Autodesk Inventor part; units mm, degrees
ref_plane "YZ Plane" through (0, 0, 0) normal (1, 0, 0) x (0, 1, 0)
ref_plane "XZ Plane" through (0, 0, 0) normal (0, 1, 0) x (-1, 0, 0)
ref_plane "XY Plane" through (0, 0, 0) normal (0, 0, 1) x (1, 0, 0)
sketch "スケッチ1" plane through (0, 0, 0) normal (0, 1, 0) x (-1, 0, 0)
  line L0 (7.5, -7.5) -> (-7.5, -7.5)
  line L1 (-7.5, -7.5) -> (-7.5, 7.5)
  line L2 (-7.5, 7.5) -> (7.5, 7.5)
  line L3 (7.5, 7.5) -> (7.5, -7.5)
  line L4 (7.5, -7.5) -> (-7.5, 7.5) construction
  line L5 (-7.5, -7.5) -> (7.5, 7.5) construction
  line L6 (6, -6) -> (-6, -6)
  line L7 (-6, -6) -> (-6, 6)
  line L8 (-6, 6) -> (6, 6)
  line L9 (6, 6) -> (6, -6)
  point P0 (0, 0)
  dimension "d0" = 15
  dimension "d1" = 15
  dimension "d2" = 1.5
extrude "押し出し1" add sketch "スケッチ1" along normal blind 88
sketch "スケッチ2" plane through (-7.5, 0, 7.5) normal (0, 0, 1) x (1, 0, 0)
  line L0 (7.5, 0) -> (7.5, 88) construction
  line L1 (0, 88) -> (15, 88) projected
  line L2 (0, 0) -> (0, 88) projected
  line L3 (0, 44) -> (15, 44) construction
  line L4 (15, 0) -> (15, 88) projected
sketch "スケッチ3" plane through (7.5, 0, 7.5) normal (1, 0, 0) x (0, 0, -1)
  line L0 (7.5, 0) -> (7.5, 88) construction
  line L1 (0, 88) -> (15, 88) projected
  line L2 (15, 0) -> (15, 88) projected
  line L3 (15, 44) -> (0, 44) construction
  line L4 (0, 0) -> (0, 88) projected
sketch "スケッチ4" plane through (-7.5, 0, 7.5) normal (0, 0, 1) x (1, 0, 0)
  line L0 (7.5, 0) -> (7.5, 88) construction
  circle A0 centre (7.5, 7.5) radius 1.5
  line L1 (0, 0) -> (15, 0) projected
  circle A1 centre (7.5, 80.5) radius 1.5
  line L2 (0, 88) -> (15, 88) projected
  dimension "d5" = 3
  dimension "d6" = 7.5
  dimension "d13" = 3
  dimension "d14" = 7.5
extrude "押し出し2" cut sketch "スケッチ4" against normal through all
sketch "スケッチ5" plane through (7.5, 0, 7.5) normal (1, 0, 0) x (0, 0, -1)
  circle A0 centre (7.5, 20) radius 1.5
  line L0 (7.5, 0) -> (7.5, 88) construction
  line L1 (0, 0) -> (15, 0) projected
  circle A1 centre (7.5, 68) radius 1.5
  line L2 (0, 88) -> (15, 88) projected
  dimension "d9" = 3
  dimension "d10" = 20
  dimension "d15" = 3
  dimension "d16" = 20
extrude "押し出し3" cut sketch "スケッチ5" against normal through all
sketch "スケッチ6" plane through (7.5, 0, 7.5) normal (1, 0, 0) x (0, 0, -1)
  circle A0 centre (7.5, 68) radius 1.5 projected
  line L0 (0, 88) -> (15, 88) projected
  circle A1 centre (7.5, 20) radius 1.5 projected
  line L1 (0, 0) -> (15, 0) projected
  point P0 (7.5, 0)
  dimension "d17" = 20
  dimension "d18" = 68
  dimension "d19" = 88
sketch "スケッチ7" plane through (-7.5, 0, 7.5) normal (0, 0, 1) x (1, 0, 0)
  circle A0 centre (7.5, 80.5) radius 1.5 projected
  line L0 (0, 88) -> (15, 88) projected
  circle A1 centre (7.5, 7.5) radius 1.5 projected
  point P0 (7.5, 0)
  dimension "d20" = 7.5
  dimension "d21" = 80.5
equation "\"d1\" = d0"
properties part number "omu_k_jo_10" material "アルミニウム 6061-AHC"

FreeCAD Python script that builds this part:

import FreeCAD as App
import Part
import Sketcher
Q = App.Units.Quantity


def add_polygon(sketch, points):
    """Adds a closed chain of lines whose ends are joined by coincident constraints."""
    first, n = sketch.GeometryCount, len(points)
    for a, b in zip(points, points[1:] + points[:1]):
        sketch.addGeometry(Part.LineSegment(App.Vector(*a, 0), App.Vector(*b, 0)), False)
    for i in range(n):
        sketch.addConstraint(Sketcher.Constraint("Coincident", first + i, 2, first + (i + 1) % n, 1))

doc = App.newDocument("Part")
body = doc.addObject("PartDesign::Body", "Body")

# Sketch on XZ plane
sketch1 = body.newObject("Sketcher::SketchObject", "Sketch")
sketch1.AttachmentSupport = (doc.getObject("XZ_Plane"), [""])
sketch1.MapMode = "FlatFace"
add_polygon(sketch1, [(7.5, -7.5), (-7.5, -7.5), (-7.5, 7.5), (7.5, 7.5)])  # lines 0-3
add_polygon(sketch1, [(-6, 6), (-6, -6), (6, -6), (6, 6)])  # lines 4-7
sketch1.addConstraint(Sketcher.Constraint("Horizontal", 0))
sketch1.addConstraint(Sketcher.Constraint("Vertical", 1))
sketch1.addConstraint(Sketcher.Constraint("Horizontal", 2))
sketch1.addConstraint(Sketcher.Constraint("Vertical", 3))
sketch1.addConstraint(Sketcher.Constraint("Vertical", 4))
sketch1.addConstraint(Sketcher.Constraint("Horizontal", 5))
sketch1.addConstraint(Sketcher.Constraint("Vertical", 6))
sketch1.addConstraint(Sketcher.Constraint("Horizontal", 7))
sketch1.addConstraint(Sketcher.Constraint("Symmetric", 0, 2, 2, 2, -1, 1))
sketch1.addConstraint(Sketcher.Constraint("Symmetric", 4, 2, 6, 2, -1, 1))
sketch1.addConstraint(Sketcher.Constraint("Equal", 2, 1))
sketch1.addConstraint(Sketcher.Constraint("Equal", 7, 4))
sketch1.addConstraint(Sketcher.Constraint("DistanceX", 0, 2, 0, 1, Q("15 mm")))
sketch1.addConstraint(Sketcher.Constraint("DistanceX", 0, 2, 4, 2, Q("1.5 mm")))
pad1 = body.newObject("PartDesign::Pad", "Pad")
pad1.Profile = sketch1
pad1.Length = 88
pad1.Reversed = True

# Sketch on XY plane
sketch2 = body.newObject("Sketcher::SketchObject", "Sketch001")
sketch2.AttachmentSupport = (doc.getObject("XY_Plane"), [""])
sketch2.MapMode = "FlatFace"
sketch2.AttachmentOffset = App.Placement(App.Vector(0, 0, 7.5), App.Rotation())
sketch2.addGeometry(Part.Circle(App.Vector(0, 7.5, 0), App.Vector(0, 0, 1), 1.5), False)
sketch2.addGeometry(Part.Circle(App.Vector(0, 80.5, 0), App.Vector(0, 0, 1), 1.5), False)
sketch2.addConstraint(Sketcher.Constraint("Equal", 0, 1))
sketch2.addConstraint(Sketcher.Constraint("PointOnObject", 0, 3, -2))
sketch2.addConstraint(Sketcher.Constraint("PointOnObject", 1, 3, -2))
sketch2.addConstraint(Sketcher.Constraint("Diameter", 0, Q("3 mm")))
sketch2.addConstraint(Sketcher.Constraint("DistanceY", -1, 1, 0, 3, Q("7.5 mm")))
sketch2.addConstraint(Sketcher.Constraint("DistanceY", 0, 3, 1, 3, Q("73 mm")))
pocket1 = body.newObject("PartDesign::Pocket", "Pocket")
pocket1.Profile = sketch2
pocket1.Type = "ThroughAll"

# Sketch on YZ plane
sketch3 = body.newObject("Sketcher::SketchObject", "Sketch002")
sketch3.AttachmentSupport = (doc.getObject("YZ_Plane"), [""])
sketch3.MapMode = "FlatFace"
sketch3.AttachmentOffset = App.Placement(App.Vector(0, 0, 7.5), App.Rotation())
sketch3.addGeometry(Part.Circle(App.Vector(20, 0, 0), App.Vector(0, 0, 1), 1.5), False)
sketch3.addGeometry(Part.Circle(App.Vector(68, 0, 0), App.Vector(0, 0, 1), 1.5), False)
sketch3.addConstraint(Sketcher.Constraint("Equal", 0, 1))
sketch3.addConstraint(Sketcher.Constraint("PointOnObject", 0, 3, -1))
sketch3.addConstraint(Sketcher.Constraint("PointOnObject", 1, 3, -1))
sketch3.addConstraint(Sketcher.Constraint("Diameter", 0, Q("3 mm")))
sketch3.addConstraint(Sketcher.Constraint("DistanceX", -1, 1, 0, 3, Q("20 mm")))
sketch3.addConstraint(Sketcher.Constraint("DistanceX", -1, 1, 1, 3, Q("68 mm")))
pocket2 = body.newObject("PartDesign::Pocket", "Pocket001")
pocket2.Profile = sketch3
pocket2.Type = "ThroughAll"

doc.recompute()
